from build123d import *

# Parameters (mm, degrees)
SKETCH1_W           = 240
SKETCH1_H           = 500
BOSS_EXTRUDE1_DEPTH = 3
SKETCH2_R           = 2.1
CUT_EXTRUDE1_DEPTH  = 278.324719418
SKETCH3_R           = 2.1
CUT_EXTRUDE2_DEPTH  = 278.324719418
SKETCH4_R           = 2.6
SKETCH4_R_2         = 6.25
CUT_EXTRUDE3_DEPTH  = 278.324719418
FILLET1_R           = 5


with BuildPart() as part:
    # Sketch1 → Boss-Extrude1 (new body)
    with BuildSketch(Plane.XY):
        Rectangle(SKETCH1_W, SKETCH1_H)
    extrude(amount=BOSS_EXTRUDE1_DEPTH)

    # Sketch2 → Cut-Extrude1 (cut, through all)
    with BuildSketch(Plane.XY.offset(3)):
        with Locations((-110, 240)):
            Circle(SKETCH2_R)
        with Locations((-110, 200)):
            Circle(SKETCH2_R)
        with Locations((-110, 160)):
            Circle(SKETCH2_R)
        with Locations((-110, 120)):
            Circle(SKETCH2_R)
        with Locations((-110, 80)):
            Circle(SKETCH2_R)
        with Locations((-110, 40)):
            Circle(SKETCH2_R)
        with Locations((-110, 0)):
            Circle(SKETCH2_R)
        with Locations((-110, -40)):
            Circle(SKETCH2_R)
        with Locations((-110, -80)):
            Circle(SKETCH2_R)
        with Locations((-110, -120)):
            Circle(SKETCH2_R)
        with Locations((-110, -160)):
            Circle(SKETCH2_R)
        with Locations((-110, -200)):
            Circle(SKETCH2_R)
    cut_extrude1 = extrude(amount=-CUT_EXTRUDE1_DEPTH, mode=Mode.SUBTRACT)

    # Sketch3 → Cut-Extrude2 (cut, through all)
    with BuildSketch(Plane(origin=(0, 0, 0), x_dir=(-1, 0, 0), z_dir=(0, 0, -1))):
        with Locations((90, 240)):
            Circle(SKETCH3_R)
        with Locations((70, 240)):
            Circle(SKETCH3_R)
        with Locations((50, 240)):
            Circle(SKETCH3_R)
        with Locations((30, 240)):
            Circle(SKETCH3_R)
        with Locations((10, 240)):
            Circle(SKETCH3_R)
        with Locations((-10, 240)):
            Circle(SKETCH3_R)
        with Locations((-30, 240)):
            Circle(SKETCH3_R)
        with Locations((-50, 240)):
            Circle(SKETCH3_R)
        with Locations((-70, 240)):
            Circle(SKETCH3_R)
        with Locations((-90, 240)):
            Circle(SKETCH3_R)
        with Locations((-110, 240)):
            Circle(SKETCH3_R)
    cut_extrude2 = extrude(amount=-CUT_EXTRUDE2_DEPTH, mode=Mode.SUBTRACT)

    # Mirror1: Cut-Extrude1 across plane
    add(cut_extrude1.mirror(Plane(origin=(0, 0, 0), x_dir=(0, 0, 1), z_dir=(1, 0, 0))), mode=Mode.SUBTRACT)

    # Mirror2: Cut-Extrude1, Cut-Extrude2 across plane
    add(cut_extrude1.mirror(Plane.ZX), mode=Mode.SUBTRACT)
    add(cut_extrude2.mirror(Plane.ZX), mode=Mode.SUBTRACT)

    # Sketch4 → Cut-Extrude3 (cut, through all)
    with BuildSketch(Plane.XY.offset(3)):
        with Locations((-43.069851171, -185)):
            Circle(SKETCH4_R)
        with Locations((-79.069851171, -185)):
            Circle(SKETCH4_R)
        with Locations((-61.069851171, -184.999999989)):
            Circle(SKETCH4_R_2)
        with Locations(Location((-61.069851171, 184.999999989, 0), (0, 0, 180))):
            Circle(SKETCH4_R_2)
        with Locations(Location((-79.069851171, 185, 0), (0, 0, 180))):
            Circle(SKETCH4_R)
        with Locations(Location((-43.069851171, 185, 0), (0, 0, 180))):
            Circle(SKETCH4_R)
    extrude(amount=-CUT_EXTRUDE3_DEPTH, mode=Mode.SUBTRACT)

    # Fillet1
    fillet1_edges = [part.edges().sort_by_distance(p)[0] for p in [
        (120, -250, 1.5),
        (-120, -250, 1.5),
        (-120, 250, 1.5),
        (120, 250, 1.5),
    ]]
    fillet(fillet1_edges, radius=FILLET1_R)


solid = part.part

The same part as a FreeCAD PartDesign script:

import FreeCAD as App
import Part
import Sketcher

V = App.Vector
Q = App.Units.Quantity


def edges_at(feature, points):
    """Names of the edges that pass closest to the given points."""
    edges = feature.Shape.Edges
    near = lambda p: min(range(len(edges)), key=lambda i: edges[i].distToShape(Part.Vertex(*p))[0])
    return sorted({f"Edge{near(p) + 1}" for p in points})

doc = App.newDocument("Part")
body = doc.addObject("PartDesign::Body", "Body")

sketch1 = body.newObject("Sketcher::SketchObject", "Sketch")
sketch1.AttachmentSupport = (doc.getObject("XY_Plane"), [""])
sketch1.MapMode = "FlatFace"
sketch1.addGeometry([
    Part.LineSegment(V(-120, 250, 0), V(-120, -250, 0)),
    Part.LineSegment(V(-120, -250, 0), V(120, -250, 0)),
    Part.LineSegment(V(120, -250, 0), V(120, 250, 0)),
    Part.LineSegment(V(120, 250, 0), V(-120, 250, 0)),
], False)
sketch1.addConstraint([
    Sketcher.Constraint("Coincident", 0, 2, 1, 1),
    Sketcher.Constraint("Coincident", 1, 2, 2, 1),
    Sketcher.Constraint("Coincident", 2, 2, 3, 1),
    Sketcher.Constraint("Coincident", 3, 2, 0, 1),
    Sketcher.Constraint("Vertical", 0),
    Sketcher.Constraint("Horizontal", 1),
    Sketcher.Constraint("Vertical", 2),
    Sketcher.Constraint("Horizontal", 3),
    Sketcher.Constraint("Symmetric", 0, 2, 2, 2, -1, 1),
    Sketcher.Constraint("DistanceX", 1, 1, 1, 2, Q("240 mm")),
    Sketcher.Constraint("DistanceY", 0, 2, 0, 1, Q("500 mm")),
])
pad1 = body.newObject("PartDesign::Pad", "Pad")
pad1.Profile = sketch1
pad1.Length = 3

sketch2 = body.newObject("Sketcher::SketchObject", "Sketch001")
sketch2.AttachmentSupport = (doc.getObject("XY_Plane"), [""])
sketch2.MapMode = "FlatFace"
sketch2.AttachmentOffset = App.Placement(V(0, 0, 3), App.Rotation())
sketch2.addGeometry([
    Part.Circle(V(-110, 240, 0), V(0, 0, 1), 2.1),
    Part.Circle(V(-110, 200, 0), V(0, 0, 1), 2.1),
    Part.Circle(V(-110, 160, 0), V(0, 0, 1), 2.1),
    Part.Circle(V(-110, 120, 0), V(0, 0, 1), 2.1),
    Part.Circle(V(-110, 80, 0), V(0, 0, 1), 2.1),
    Part.Circle(V(-110, 40, 0), V(0, 0, 1), 2.1),
    Part.Circle(V(-110, 0, 0), V(0, 0, 1), 2.1),
    Part.Circle(V(-110, -40, 0), V(0, 0, 1), 2.1),
    Part.Circle(V(-110, -80, 0), V(0, 0, 1), 2.1),
    Part.Circle(V(-110, -120, 0), V(0, 0, 1), 2.1),
    Part.Circle(V(-110, -160, 0), V(0, 0, 1), 2.1),
    Part.Circle(V(-110, -200, 0), V(0, 0, 1), 2.1),
], False)
sketch2.addConstraint([
    Sketcher.Constraint("Equal", 0, 1),
    Sketcher.Constraint("Equal", 1, 2),
    Sketcher.Constraint("Equal", 2, 3),
    Sketcher.Constraint("Equal", 3, 4),
    Sketcher.Constraint("Equal", 4, 5),
    Sketcher.Constraint("Equal", 5, 6),
    Sketcher.Constraint("Equal", 6, 7),
    Sketcher.Constraint("Equal", 7, 8),
    Sketcher.Constraint("Equal", 8, 9),
    Sketcher.Constraint("Equal", 9, 10),
    Sketcher.Constraint("Equal", 10, 11),
    Sketcher.Constraint("Symmetric", 5, 3, 7, 3, -1),
    Sketcher.Constraint("Symmetric", 4, 3, 8, 3, -1),
    Sketcher.Constraint("Symmetric", 3, 3, 9, 3, -1),
    Sketcher.Constraint("Symmetric", 2, 3, 10, 3, -1),
    Sketcher.Constraint("Symmetric", 1, 3, 11, 3, -1),
    Sketcher.Constraint("PointOnObject", 6, 3, -1),
    Sketcher.Constraint("Vertical", 0, 3, 1, 3),
    Sketcher.Constraint("Vertical", 1, 3, 2, 3),
    Sketcher.Constraint("Vertical", 2, 3, 3, 3),
    Sketcher.Constraint("Vertical", 3, 3, 4, 3),
    Sketcher.Constraint("Vertical", 4, 3, 5, 3),
    Sketcher.Constraint("Vertical", 5, 3, 6, 3),
    Sketcher.Constraint("Diameter", 0, Q("4.2 mm")),
    Sketcher.Constraint("DistanceX", 0, 3, -1, 1, Q("110 mm")),
    Sketcher.Constraint("DistanceY", -1, 1, 0, 3, Q("240 mm")),
    Sketcher.Constraint("DistanceY", -1, 1, 1, 3, Q("200 mm")),
    Sketcher.Constraint("DistanceY", -1, 1, 2, 3, Q("160 mm")),
    Sketcher.Constraint("DistanceY", -1, 1, 3, 3, Q("120 mm")),
    Sketcher.Constraint("DistanceY", -1, 1, 4, 3, Q("80 mm")),
    Sketcher.Constraint("DistanceY", -1, 1, 5, 3, Q("40 mm")),
])
pocket1 = body.newObject("PartDesign::Pocket", "Pocket")
pocket1.Profile = sketch2
pocket1.Type = "ThroughAll"

sketch3 = body.newObject("Sketcher::SketchObject", "Sketch002")
sketch3.AttachmentSupport = (doc.getObject("XY_Plane"), [""])
sketch3.MapMode = "FlatFace"
sketch3.addGeometry([
    Part.Circle(V(-90, 240, 0), V(0, 0, 1), 2.1),
    Part.Circle(V(-70, 240, 0), V(0, 0, 1), 2.1),
    Part.Circle(V(-50, 240, 0), V(0, 0, 1), 2.1),
    Part.Circle(V(-30, 240, 0), V(0, 0, 1), 2.1),
    Part.Circle(V(-10, 240, 0), V(0, 0, 1), 2.1),
    Part.Circle(V(10, 240, 0), V(0, 0, 1), 2.1),
    Part.Circle(V(30, 240, 0), V(0, 0, 1), 2.1),
    Part.Circle(V(50, 240, 0), V(0, 0, 1), 2.1),
    Part.Circle(V(70, 240, 0), V(0, 0, 1), 2.1),
    Part.Circle(V(90, 240, 0), V(0, 0, 1), 2.1),
    Part.Circle(V(110, 240, 0), V(0, 0, 1), 2.1),
], False)
sketch3.addConstraint([
    Sketcher.Constraint("Equal", 0, 1),
    Sketcher.Constraint("Equal", 1, 2),
    Sketcher.Constraint("Equal", 2, 3),
    Sketcher.Constraint("Equal", 3, 4),
    Sketcher.Constraint("Equal", 4, 5),
    Sketcher.Constraint("Equal", 5, 6),
    Sketcher.Constraint("Equal", 6, 7),
    Sketcher.Constraint("Equal", 7, 8),
    Sketcher.Constraint("Equal", 8, 9),
    Sketcher.Constraint("Equal", 9, 10),
    Sketcher.Constraint("Symmetric", 4, 3, 5, 3, -2),
    Sketcher.Constraint("Symmetric", 3, 3, 6, 3, -2),
    Sketcher.Constraint("Symmetric", 2, 3, 7, 3, -2),
    Sketcher.Constraint("Symmetric", 1, 3, 8, 3, -2),
    Sketcher.Constraint("Symmetric", 0, 3, 9, 3, -2),
    Sketcher.Constraint("Horizontal", 0, 3, 1, 3),
    Sketcher.Constraint("Horizontal", 1, 3, 2, 3),
    Sketcher.Constraint("Horizontal", 2, 3, 3, 3),
    Sketcher.Constraint("Horizontal", 3, 3, 4, 3),
    Sketcher.Constraint("Horizontal", 9, 3, 10, 3),
    Sketcher.Constraint("Diameter", 0, Q("4.2 mm")),
    Sketcher.Constraint("DistanceX", 0, 3, -1, 1, Q("90 mm")),
    Sketcher.Constraint("DistanceY", -1, 1, 0, 3, Q("240 mm")),
    Sketcher.Constraint("DistanceX", 1, 3, -1, 1, Q("70 mm")),
    Sketcher.Constraint("DistanceX", 2, 3, -1, 1, Q("50 mm")),
    Sketcher.Constraint("DistanceX", 3, 3, -1, 1, Q("30 mm")),
    Sketcher.Constraint("DistanceX", 4, 3, -1, 1, Q("10 mm")),
    Sketcher.Constraint("DistanceX", -1, 1, 10, 3, Q("110 mm")),
])
pocket2 = body.newObject("PartDesign::Pocket", "Pocket001")
pocket2.Profile = sketch3
pocket2.Type = "ThroughAll"
pocket2.Reversed = True
doc.recompute()

mirrored = body.newObject("PartDesign::Mirrored", "Mirrored")
mirrored.Originals = [pocket1]
mirrored.MirrorPlane = (doc.getObject("YZ_Plane"), [""])
body.Tip = mirrored
doc.recompute()

mirrored2 = body.newObject("PartDesign::Mirrored", "Mirrored001")
mirrored2.Originals = [pocket1, pocket2]
mirrored2.MirrorPlane = (doc.getObject("XZ_Plane"), [""])
body.Tip = mirrored2

sketch4 = body.newObject("Sketcher::SketchObject", "Sketch003")
sketch4.AttachmentSupport = (doc.getObject("XY_Plane"), [""])
sketch4.MapMode = "FlatFace"
sketch4.AttachmentOffset = App.Placement(V(0, 0, 3), App.Rotation())
sketch4.addGeometry([
    Part.Circle(V(-43.069851, -185, 0), V(0, 0, 1), 2.6),
    Part.Circle(V(-79.069851, -185, 0), V(0, 0, 1), 2.6),
    Part.Circle(V(-61.069851, -185, 0), V(0, 0, 1), 6.25),
    Part.Circle(V(-61.069851, 185, 0), V(0, 0, 1), 6.25),
    Part.Circle(V(-79.069851, 185, 0), V(0, 0, 1), 2.6),
    Part.Circle(V(-43.069851, 185, 0), V(0, 0, 1), 2.6),
], False)
sketch4.addConstraint([
    Sketcher.Constraint("Equal", 0, 1),
    Sketcher.Constraint("Equal", 2, 3),
    Sketcher.Constraint("Equal", 1, 4),
    Sketcher.Constraint("Equal", 4, 5),
    Sketcher.Constraint("Symmetric", 2, 3, 3, 3, -1),
    Sketcher.Constraint("Symmetric", 1, 3, 4, 3, -1),
    Sketcher.Constraint("Symmetric", 0, 3, 5, 3, -1),
    Sketcher.Constraint("Horizontal", 0, 3, 1, 3),
    Sketcher.Constraint("Horizontal", 1, 3, 2, 3),
    Sketcher.Constraint("Diameter", 0, Q("5.2 mm")),
    Sketcher.Constraint("Diameter", 2, Q("12.5 mm")),
    Sketcher.Constraint("DistanceY", 0, 3, -1, 1, Q("185 mm")),
    Sketcher.Constraint("DistanceX", 1, 3, 0, 3, Q("36 mm")),
    Sketcher.Constraint("DistanceX", 1, 3, 2, 3, Q("18 mm")),
    Sketcher.Constraint("DistanceX", 0, 3, -1, 1, Q("43.069851 mm")),
])
pocket3 = body.newObject("PartDesign::Pocket", "Pocket002")
pocket3.Profile = sketch4
pocket3.Type = "ThroughAll"
doc.recompute()

fillet = body.newObject("PartDesign::Fillet", "Fillet")
fillet.Base = (pocket3, edges_at(pocket3, [
    (120, -250, 1.5),
    (-120, -250, 1.5),
    (-120, 250, 1.5),
    (120, 250, 1.5),
]))
fillet.Radius = 5

doc.recompute()
